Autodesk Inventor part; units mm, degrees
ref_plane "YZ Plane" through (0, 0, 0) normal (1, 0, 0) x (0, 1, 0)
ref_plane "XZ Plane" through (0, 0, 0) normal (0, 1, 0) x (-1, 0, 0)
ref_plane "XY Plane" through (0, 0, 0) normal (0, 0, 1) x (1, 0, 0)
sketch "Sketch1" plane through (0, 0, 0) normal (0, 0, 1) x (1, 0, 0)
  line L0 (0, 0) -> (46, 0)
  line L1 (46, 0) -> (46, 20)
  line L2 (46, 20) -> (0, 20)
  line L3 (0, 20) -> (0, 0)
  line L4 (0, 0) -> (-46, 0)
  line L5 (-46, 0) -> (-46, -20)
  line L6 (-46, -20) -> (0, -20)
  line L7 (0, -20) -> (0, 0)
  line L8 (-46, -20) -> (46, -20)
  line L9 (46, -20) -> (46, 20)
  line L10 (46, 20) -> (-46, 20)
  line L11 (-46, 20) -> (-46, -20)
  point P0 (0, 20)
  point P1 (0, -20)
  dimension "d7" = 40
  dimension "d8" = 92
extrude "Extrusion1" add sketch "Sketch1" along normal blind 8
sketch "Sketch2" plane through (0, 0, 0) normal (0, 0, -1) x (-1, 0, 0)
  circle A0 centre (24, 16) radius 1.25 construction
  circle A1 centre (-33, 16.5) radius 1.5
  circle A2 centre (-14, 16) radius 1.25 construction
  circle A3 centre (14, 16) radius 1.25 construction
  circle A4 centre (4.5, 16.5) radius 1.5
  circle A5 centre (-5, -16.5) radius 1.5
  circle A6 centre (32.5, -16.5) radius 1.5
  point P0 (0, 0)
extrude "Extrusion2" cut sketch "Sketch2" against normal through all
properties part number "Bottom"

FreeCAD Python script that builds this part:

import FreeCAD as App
import Part
import Sketcher
from FreeCAD import Vector
Q = App.Units.Quantity


def add_polygon(sketch, points):
    """Adds a closed chain of lines whose ends are joined by coincident constraints."""
    first, n = sketch.GeometryCount, len(points)
    for a, b in zip(points, points[1:] + points[:1]):
        sketch.addGeometry(Part.LineSegment(App.Vector(*a, 0), App.Vector(*b, 0)), False)
    for i in range(n):
        sketch.addConstraint(Sketcher.Constraint("Coincident", first + i, 2, first + (i + 1) % n, 1))

doc = App.newDocument("Part")
body = doc.addObject("PartDesign::Body", "Body")

sketch1 = doc.addObject("Sketcher::SketchObject", "Sketch")
body.addObject(sketch1)
sketch1.AttachmentSupport = (doc.XY_Plane, [""])
sketch1.MapMode = "FlatFace"
add_polygon(sketch1, [(46, 20), (-46, 20), (-46, -20), (46, -20)])
sketch1.addConstraint(Sketcher.Constraint("Horizontal", 0))
sketch1.addConstraint(Sketcher.Constraint("Vertical", 1))
sketch1.addConstraint(Sketcher.Constraint("Horizontal", 2))
sketch1.addConstraint(Sketcher.Constraint("Vertical", 3))
sketch1.addConstraint(Sketcher.Constraint("Symmetric", 0, 2, 2, 2, -1, 1))
sketch1.addConstraint(Sketcher.Constraint("DistanceX", 0, 2, 0, 1, Q("92 mm")))
sketch1.addConstraint(Sketcher.Constraint("DistanceY", 1, 2, 1, 1, Q("40 mm")))
pad1 = doc.addObject("PartDesign::Pad", "Pad")
body.addObject(pad1)
pad1.Profile = sketch1
pad1.Length = 8

sketch2 = doc.addObject("Sketcher::SketchObject", "Sketch001")
body.addObject(sketch2)
sketch2.AttachmentSupport = (doc.XY_Plane, [""])
sketch2.MapMode = "FlatFace"
sketch2.addGeometry(Part.Circle(Vector(33, 16.5, 0), Vector(0, 0, 1), 1.5), False)
sketch2.addGeometry(Part.Circle(Vector(-4.5, 16.5, 0), Vector(0, 0, 1), 1.5), False)
sketch2.addGeometry(Part.Circle(Vector(5, -16.5, 0), Vector(0, 0, 1), 1.5), False)
sketch2.addGeometry(Part.Circle(Vector(-32.5, -16.5, 0), Vector(0, 0, 1), 1.5), False)
sketch2.addConstraint(Sketcher.Constraint("Equal", 0, 1))
sketch2.addConstraint(Sketcher.Constraint("Equal", 1, 2))
sketch2.addConstraint(Sketcher.Constraint("Equal", 2, 3))
sketch2.addConstraint(Sketcher.Constraint("Horizontal", 0, 3, 1, 3))
sketch2.addConstraint(Sketcher.Constraint("Horizontal", 2, 3, 3, 3))
sketch2.addConstraint(Sketcher.Constraint("Diameter", 0, Q("3 mm")))
sketch2.addConstraint(Sketcher.Constraint("DistanceX", -1, 1, 0, 3, Q("33 mm")))
sketch2.addConstraint(Sketcher.Constraint("DistanceX", -1, 1, 2, 3, Q("5 mm")))
sketch2.addConstraint(Sketcher.Constraint("DistanceY", 2, 3, 1, 3, Q("33 mm")))
sketch2.addConstraint(Sketcher.Constraint("DistanceX", 3, 3, 1, 3, Q("28 mm")))
sketch2.addConstraint(Sketcher.Constraint("DistanceY", -1, 1, 0, 3, Q("16.5 mm")))
sketch2.addConstraint(Sketcher.Constraint("DistanceX", 1, 3, -1, 1, Q("4.5 mm")))
pocket1 = doc.addObject("PartDesign::Pocket", "Pocket")
body.addObject(pocket1)
pocket1.Profile = sketch2
pocket1.Type = "ThroughAll"
pocket1.Reversed = True

doc.recompute()
